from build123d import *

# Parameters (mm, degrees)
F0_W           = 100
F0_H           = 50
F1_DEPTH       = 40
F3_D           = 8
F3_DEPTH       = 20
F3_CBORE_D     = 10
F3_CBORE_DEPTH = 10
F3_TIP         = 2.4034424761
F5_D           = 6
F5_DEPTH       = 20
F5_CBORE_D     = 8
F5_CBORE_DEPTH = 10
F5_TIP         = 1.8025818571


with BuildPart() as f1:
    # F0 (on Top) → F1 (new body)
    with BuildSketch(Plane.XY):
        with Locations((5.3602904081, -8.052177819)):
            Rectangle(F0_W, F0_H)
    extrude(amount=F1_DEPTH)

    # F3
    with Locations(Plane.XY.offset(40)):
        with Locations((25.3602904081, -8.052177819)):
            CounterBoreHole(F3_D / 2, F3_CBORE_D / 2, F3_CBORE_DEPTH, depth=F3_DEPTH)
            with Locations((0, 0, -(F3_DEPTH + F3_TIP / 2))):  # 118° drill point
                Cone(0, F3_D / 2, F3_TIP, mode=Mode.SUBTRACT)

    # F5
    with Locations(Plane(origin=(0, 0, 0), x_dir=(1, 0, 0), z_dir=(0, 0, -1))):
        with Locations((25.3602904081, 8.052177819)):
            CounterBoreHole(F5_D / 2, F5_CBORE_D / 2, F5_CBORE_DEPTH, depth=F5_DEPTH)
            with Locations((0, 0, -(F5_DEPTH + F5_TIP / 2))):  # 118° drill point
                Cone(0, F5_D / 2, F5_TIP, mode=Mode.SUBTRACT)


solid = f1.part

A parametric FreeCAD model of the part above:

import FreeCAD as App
import Part
import Sketcher

doc = App.newDocument("Part")
body = doc.addObject("PartDesign::Body", "Body")

# Sketch on XY plane
sketch1 = body.newObject("Sketcher::SketchObject", "Sketch")
sketch1.AttachmentSupport = (doc.getObject("XY_Plane"), [""])
sketch1.MapMode = "FlatFace"
sketch1.addGeometry(Part.LineSegment(App.Vector(-45, 17, 0), App.Vector(-45, -33, 0)), False)
sketch1.addGeometry(Part.LineSegment(App.Vector(-45, -33, 0), App.Vector(55, -33, 0)), False)
sketch1.addGeometry(Part.LineSegment(App.Vector(55, -33, 0), App.Vector(55, 17, 0)), False)
sketch1.addGeometry(Part.LineSegment(App.Vector(55, 17, 0), App.Vector(-45, 17, 0)), False)
sketch1.addConstraint(Sketcher.Constraint("Coincident", 0, 2, 1, 1))
sketch1.addConstraint(Sketcher.Constraint("Coincident", 1, 2, 2, 1))
sketch1.addConstraint(Sketcher.Constraint("Coincident", 2, 2, 3, 1))
sketch1.addConstraint(Sketcher.Constraint("Coincident", 3, 2, 0, 1))
sketch1.addConstraint(Sketcher.Constraint("Vertical", 0))
sketch1.addConstraint(Sketcher.Constraint("Horizontal", 1))
sketch1.addConstraint(Sketcher.Constraint("Vertical", 2))
sketch1.addConstraint(Sketcher.Constraint("Horizontal", 3))
sketch1.addConstraint(Sketcher.Constraint("DistanceX", 1, 1, 1, 2, 100.0))
sketch1.addConstraint(Sketcher.Constraint("DistanceY", 0, 2, 0, 1, 50.0))
sketch1.addConstraint(Sketcher.Constraint("DistanceX", 0, 2, -1, 1, 44.63971))
sketch1.addConstraint(Sketcher.Constraint("DistanceY", 0, 2, -1, 1, 33.052178))
pad1 = body.newObject("PartDesign::Pad", "Pad")
pad1.Profile = sketch1
pad1.Length = 40

# Sketch on XY plane
sketch2 = body.newObject("Sketcher::SketchObject", "Sketch001")
sketch2.AttachmentSupport = (doc.getObject("XY_Plane"), [""])
sketch2.MapMode = "FlatFace"
sketch2.AttachmentOffset = App.Placement(App.Vector(0, 0, 40), App.Rotation())
sketch2.addGeometry(Part.Circle(App.Vector(25.4, -8.1, 0), App.Vector(0, 0, 1), 4), False)
sketch2.addConstraint(Sketcher.Constraint("Diameter", 0, 8.0))
sketch2.addConstraint(Sketcher.Constraint("DistanceX", -1, 1, 0, 3, 25.36029))
sketch2.addConstraint(Sketcher.Constraint("DistanceY", 0, 3, -1, 1, 8.052178))
doc.recompute()
hole = body.newObject("PartDesign::Hole", "Hole")
hole.Profile = sketch2
hole.ThreadType = "None"
hole.Diameter = 8
hole.DepthType = "Dimension"
hole.Depth = 20
hole.DrillPoint = "Angled"
hole.DrillPointAngle = 118
hole.HoleCutType = "Counterbore"
hole.HoleCutDiameter = 10
hole.HoleCutDepth = 10

# Sketch on XY plane
sketch3 = body.newObject("Sketcher::SketchObject", "Sketch002")
sketch3.AttachmentSupport = (doc.getObject("XY_Plane"), [""])
sketch3.MapMode = "FlatFace"
sketch3.addGeometry(Part.Circle(App.Vector(25.4, -8.1, 0), App.Vector(0, 0, 1), 3), False)
sketch3.addConstraint(Sketcher.Constraint("Diameter", 0, 6.0))
sketch3.addConstraint(Sketcher.Constraint("DistanceX", -1, 1, 0, 3, 25.36029))
sketch3.addConstraint(Sketcher.Constraint("DistanceY", 0, 3, -1, 1, 8.052178))
doc.recompute()
hole2 = body.newObject("PartDesign::Hole", "Hole001")
hole2.Profile = sketch3
hole2.ThreadType = "None"
hole2.Diameter = 6
hole2.DepthType = "Dimension"
hole2.Depth = 20
hole2.DrillPoint = "Angled"
hole2.DrillPointAngle = 118
hole2.HoleCutType = "Counterbore"
hole2.HoleCutDiameter = 8
hole2.HoleCutDepth = 10
hole2.Reversed = True

doc.recompute()
